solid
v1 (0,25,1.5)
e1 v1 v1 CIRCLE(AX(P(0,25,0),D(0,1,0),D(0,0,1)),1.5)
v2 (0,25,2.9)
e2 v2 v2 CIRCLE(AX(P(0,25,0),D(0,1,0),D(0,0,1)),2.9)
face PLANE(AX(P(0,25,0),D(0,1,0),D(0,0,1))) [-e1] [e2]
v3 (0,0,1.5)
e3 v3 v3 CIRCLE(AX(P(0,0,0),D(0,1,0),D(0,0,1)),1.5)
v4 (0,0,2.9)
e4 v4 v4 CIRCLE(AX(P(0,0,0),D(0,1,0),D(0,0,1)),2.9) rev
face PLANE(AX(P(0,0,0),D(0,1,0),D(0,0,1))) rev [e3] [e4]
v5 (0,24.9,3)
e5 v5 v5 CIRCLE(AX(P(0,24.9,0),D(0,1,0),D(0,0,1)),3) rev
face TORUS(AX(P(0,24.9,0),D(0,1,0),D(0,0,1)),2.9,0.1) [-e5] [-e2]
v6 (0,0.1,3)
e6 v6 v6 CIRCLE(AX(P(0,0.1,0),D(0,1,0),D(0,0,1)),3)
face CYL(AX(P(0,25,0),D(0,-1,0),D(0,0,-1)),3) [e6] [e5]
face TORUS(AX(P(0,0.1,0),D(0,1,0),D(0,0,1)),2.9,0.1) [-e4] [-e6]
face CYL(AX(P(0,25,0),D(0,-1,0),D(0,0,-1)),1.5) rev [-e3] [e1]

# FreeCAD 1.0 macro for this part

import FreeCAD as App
import Part
import Sketcher
from FreeCAD import Vector
Q = App.Units.Quantity


def edges_at(feature, points):
    """Names of the edges that pass closest to the given points."""
    edges = feature.Shape.Edges
    near = lambda p: min(range(len(edges)), key=lambda i: edges[i].distToShape(Part.Vertex(*p))[0])
    return sorted({f"Edge{near(p) + 1}" for p in points})

doc = App.newDocument("Part")
params = doc.addObject("Spreadsheet::Sheet", "Params")
for row, (alias, value) in enumerate([
    ("sketch1_diameter", "6 mm"),
    ("sketch1_diameter2", "3 mm"),
    ("pad1_length", "25 mm"),
    ("fillet_radius", "0.1 mm"),
], start=1):
    params.set(f"A{row}", alias)
    params.set(f"B{row}", "=" + value)
    params.setAlias(f"B{row}", alias)

body = doc.addObject("PartDesign::Body", "Body")

# Sketch on XZ plane
sketch1 = body.newObject("Sketcher::SketchObject", "Sketch")
sketch1.AttachmentSupport = (doc.getObject("XZ_Plane"), [""])
sketch1.MapMode = "FlatFace"
sketch1.addGeometry([
    Part.Circle(Vector(0, 0, 0), Vector(0, 0, 1), 3),
    Part.Circle(Vector(0, 0, 0), Vector(0, 0, 1), 1.5),
], False)
sketch1.addConstraint([
    Sketcher.Constraint("Coincident", 0, 3, -1, 1),
    Sketcher.Constraint("Coincident", 1, 3, -1, 1),
    Sketcher.Constraint("Diameter", 0, Q("6 mm")),
    Sketcher.Constraint("Diameter", 1, Q("3 mm")),
])
sketch1.setExpression("Constraints[2]", "Params.sketch1_diameter")
sketch1.setExpression("Constraints[3]", "Params.sketch1_diameter2")
pad1 = body.newObject("PartDesign::Pad", "Pad")
pad1.Profile = sketch1
pad1.setExpression("Length", "Params.pad1_length")
pad1.Reversed = True
doc.recompute()

fillet = body.newObject("PartDesign::Fillet", "Fillet")
fillet.Base = (pad1, edges_at(pad1, [(0, 0, -3), (0, 25, -3)]))
fillet.setExpression("Radius", "Params.fillet_radius")

doc.recompute()
